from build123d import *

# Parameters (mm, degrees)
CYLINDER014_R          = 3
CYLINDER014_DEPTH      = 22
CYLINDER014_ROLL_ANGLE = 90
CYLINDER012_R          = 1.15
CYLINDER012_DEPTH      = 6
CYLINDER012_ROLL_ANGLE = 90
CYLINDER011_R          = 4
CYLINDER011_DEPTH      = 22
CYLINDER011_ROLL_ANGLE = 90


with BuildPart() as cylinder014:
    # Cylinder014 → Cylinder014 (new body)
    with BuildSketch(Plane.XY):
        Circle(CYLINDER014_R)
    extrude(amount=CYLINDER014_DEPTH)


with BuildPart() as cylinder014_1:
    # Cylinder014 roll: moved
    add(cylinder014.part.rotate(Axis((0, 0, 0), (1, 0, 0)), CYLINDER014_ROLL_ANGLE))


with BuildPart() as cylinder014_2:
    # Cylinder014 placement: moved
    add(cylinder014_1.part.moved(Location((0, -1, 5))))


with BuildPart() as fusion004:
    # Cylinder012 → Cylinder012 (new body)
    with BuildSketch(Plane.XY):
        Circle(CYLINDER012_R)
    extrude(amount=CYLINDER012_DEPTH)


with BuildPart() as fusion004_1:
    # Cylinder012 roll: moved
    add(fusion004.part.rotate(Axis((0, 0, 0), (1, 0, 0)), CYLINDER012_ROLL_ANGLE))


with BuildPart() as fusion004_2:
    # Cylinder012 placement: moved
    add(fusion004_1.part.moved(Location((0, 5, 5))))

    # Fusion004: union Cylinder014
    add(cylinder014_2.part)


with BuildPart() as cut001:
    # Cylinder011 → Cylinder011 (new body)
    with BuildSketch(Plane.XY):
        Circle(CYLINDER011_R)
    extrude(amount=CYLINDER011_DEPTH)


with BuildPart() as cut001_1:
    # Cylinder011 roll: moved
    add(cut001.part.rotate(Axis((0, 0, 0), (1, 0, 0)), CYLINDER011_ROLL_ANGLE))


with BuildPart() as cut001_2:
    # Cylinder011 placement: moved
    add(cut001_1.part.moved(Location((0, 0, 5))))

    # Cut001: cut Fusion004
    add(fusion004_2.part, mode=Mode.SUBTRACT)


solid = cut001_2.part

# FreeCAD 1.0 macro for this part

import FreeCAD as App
import Part
import Sketcher

V = App.Vector

doc = App.newDocument("Part")
body = doc.addObject("PartDesign::Body", "Body")

# Sketch on XY plane
sketch1 = body.newObject("Sketcher::SketchObject", "Sketch")
sketch1.AttachmentSupport = (doc.getObject("XY_Plane"), [""])
sketch1.MapMode = "FlatFace"
sketch1.addGeometry(Part.Circle(V(0, 0, 0), V(0, 0, 1), 3), False)
sketch1.addConstraint(Sketcher.Constraint("Coincident", 0, 3, -1, 1))
sketch1.addConstraint(Sketcher.Constraint("Diameter", 0, 6.0))
pad1 = body.newObject("PartDesign::Pad", "Pad")
pad1.Profile = sketch1
pad1.Length = 22
body2 = doc.addObject("PartDesign::Body", "Body001")
doc.recompute()

body.Placement = App.Placement(V(0, 0, 0), App.Rotation(V(1, 0, 0), 90))
boolean = body2.newObject("PartDesign::Boolean", "Boolean")
boolean.Type = "Fuse"
boolean.addObjects([body])
body3 = doc.addObject("PartDesign::Body", "Body002")
doc.recompute()

body2.Placement = App.Placement(V(0, -1, 5), App.Rotation(V(0, 0, 1), 0))
boolean2 = body3.newObject("PartDesign::Boolean", "Boolean001")
boolean2.Type = "Fuse"
boolean2.addObjects([body2])
body4 = doc.addObject("PartDesign::Body", "Body003")

# Sketch on XY plane
sketch2 = body4.newObject("Sketcher::SketchObject", "Sketch001")
sketch2.AttachmentSupport = (doc.getObject("XY_Plane003"), [""])
sketch2.MapMode = "FlatFace"
sketch2.addGeometry(Part.Circle(V(0, 0, 0), V(0, 0, 1), 1.1), False)
sketch2.addConstraint(Sketcher.Constraint("Coincident", 0, 3, -1, 1))
sketch2.addConstraint(Sketcher.Constraint("Diameter", 0, 2.3))
pad2 = body4.newObject("PartDesign::Pad", "Pad001")
pad2.Profile = sketch2
pad2.Length = 6
body5 = doc.addObject("PartDesign::Body", "Body004")
doc.recompute()

body4.Placement = App.Placement(V(0, 0, 0), App.Rotation(V(1, 0, 0), 90))
boolean3 = body5.newObject("PartDesign::Boolean", "Boolean002")
boolean3.Type = "Fuse"
boolean3.addObjects([body4])
body6 = doc.addObject("PartDesign::Body", "Body005")
doc.recompute()

body5.Placement = App.Placement(V(0, 5, 5), App.Rotation(V(0, 0, 1), 0))
boolean4 = body6.newObject("PartDesign::Boolean", "Boolean003")
boolean4.Type = "Fuse"
boolean4.addObjects([body5])
doc.recompute()

boolean5 = body6.newObject("PartDesign::Boolean", "Boolean004")
boolean5.Type = "Fuse"
boolean5.addObjects([body3])
body7 = doc.addObject("PartDesign::Body", "Body006")

# Sketch on XY plane
sketch3 = body7.newObject("Sketcher::SketchObject", "Sketch002")
sketch3.AttachmentSupport = (doc.getObject("XY_Plane006"), [""])
sketch3.MapMode = "FlatFace"
sketch3.addGeometry(Part.Circle(V(0, 0, 0), V(0, 0, 1), 4), False)
sketch3.addConstraint(Sketcher.Constraint("Coincident", 0, 3, -1, 1))
sketch3.addConstraint(Sketcher.Constraint("Diameter", 0, 8.0))
pad3 = body7.newObject("PartDesign::Pad", "Pad002")
pad3.Profile = sketch3
pad3.Length = 22
body8 = doc.addObject("PartDesign::Body", "Body007")
doc.recompute()

body7.Placement = App.Placement(V(0, 0, 0), App.Rotation(V(1, 0, 0), 90))
boolean6 = body8.newObject("PartDesign::Boolean", "Boolean005")
boolean6.Type = "Fuse"
boolean6.addObjects([body7])
body9 = doc.addObject("PartDesign::Body", "Body008")
doc.recompute()

body8.Placement = App.Placement(V(0, 0, 5), App.Rotation(V(0, 0, 1), 0))
boolean7 = body9.newObject("PartDesign::Boolean", "Boolean006")
boolean7.Type = "Fuse"
boolean7.addObjects([body8])
doc.recompute()

boolean8 = body9.newObject("PartDesign::Boolean", "Boolean007")
boolean8.Type = "Cut"
boolean8.addObjects([body6])

doc.recompute()
